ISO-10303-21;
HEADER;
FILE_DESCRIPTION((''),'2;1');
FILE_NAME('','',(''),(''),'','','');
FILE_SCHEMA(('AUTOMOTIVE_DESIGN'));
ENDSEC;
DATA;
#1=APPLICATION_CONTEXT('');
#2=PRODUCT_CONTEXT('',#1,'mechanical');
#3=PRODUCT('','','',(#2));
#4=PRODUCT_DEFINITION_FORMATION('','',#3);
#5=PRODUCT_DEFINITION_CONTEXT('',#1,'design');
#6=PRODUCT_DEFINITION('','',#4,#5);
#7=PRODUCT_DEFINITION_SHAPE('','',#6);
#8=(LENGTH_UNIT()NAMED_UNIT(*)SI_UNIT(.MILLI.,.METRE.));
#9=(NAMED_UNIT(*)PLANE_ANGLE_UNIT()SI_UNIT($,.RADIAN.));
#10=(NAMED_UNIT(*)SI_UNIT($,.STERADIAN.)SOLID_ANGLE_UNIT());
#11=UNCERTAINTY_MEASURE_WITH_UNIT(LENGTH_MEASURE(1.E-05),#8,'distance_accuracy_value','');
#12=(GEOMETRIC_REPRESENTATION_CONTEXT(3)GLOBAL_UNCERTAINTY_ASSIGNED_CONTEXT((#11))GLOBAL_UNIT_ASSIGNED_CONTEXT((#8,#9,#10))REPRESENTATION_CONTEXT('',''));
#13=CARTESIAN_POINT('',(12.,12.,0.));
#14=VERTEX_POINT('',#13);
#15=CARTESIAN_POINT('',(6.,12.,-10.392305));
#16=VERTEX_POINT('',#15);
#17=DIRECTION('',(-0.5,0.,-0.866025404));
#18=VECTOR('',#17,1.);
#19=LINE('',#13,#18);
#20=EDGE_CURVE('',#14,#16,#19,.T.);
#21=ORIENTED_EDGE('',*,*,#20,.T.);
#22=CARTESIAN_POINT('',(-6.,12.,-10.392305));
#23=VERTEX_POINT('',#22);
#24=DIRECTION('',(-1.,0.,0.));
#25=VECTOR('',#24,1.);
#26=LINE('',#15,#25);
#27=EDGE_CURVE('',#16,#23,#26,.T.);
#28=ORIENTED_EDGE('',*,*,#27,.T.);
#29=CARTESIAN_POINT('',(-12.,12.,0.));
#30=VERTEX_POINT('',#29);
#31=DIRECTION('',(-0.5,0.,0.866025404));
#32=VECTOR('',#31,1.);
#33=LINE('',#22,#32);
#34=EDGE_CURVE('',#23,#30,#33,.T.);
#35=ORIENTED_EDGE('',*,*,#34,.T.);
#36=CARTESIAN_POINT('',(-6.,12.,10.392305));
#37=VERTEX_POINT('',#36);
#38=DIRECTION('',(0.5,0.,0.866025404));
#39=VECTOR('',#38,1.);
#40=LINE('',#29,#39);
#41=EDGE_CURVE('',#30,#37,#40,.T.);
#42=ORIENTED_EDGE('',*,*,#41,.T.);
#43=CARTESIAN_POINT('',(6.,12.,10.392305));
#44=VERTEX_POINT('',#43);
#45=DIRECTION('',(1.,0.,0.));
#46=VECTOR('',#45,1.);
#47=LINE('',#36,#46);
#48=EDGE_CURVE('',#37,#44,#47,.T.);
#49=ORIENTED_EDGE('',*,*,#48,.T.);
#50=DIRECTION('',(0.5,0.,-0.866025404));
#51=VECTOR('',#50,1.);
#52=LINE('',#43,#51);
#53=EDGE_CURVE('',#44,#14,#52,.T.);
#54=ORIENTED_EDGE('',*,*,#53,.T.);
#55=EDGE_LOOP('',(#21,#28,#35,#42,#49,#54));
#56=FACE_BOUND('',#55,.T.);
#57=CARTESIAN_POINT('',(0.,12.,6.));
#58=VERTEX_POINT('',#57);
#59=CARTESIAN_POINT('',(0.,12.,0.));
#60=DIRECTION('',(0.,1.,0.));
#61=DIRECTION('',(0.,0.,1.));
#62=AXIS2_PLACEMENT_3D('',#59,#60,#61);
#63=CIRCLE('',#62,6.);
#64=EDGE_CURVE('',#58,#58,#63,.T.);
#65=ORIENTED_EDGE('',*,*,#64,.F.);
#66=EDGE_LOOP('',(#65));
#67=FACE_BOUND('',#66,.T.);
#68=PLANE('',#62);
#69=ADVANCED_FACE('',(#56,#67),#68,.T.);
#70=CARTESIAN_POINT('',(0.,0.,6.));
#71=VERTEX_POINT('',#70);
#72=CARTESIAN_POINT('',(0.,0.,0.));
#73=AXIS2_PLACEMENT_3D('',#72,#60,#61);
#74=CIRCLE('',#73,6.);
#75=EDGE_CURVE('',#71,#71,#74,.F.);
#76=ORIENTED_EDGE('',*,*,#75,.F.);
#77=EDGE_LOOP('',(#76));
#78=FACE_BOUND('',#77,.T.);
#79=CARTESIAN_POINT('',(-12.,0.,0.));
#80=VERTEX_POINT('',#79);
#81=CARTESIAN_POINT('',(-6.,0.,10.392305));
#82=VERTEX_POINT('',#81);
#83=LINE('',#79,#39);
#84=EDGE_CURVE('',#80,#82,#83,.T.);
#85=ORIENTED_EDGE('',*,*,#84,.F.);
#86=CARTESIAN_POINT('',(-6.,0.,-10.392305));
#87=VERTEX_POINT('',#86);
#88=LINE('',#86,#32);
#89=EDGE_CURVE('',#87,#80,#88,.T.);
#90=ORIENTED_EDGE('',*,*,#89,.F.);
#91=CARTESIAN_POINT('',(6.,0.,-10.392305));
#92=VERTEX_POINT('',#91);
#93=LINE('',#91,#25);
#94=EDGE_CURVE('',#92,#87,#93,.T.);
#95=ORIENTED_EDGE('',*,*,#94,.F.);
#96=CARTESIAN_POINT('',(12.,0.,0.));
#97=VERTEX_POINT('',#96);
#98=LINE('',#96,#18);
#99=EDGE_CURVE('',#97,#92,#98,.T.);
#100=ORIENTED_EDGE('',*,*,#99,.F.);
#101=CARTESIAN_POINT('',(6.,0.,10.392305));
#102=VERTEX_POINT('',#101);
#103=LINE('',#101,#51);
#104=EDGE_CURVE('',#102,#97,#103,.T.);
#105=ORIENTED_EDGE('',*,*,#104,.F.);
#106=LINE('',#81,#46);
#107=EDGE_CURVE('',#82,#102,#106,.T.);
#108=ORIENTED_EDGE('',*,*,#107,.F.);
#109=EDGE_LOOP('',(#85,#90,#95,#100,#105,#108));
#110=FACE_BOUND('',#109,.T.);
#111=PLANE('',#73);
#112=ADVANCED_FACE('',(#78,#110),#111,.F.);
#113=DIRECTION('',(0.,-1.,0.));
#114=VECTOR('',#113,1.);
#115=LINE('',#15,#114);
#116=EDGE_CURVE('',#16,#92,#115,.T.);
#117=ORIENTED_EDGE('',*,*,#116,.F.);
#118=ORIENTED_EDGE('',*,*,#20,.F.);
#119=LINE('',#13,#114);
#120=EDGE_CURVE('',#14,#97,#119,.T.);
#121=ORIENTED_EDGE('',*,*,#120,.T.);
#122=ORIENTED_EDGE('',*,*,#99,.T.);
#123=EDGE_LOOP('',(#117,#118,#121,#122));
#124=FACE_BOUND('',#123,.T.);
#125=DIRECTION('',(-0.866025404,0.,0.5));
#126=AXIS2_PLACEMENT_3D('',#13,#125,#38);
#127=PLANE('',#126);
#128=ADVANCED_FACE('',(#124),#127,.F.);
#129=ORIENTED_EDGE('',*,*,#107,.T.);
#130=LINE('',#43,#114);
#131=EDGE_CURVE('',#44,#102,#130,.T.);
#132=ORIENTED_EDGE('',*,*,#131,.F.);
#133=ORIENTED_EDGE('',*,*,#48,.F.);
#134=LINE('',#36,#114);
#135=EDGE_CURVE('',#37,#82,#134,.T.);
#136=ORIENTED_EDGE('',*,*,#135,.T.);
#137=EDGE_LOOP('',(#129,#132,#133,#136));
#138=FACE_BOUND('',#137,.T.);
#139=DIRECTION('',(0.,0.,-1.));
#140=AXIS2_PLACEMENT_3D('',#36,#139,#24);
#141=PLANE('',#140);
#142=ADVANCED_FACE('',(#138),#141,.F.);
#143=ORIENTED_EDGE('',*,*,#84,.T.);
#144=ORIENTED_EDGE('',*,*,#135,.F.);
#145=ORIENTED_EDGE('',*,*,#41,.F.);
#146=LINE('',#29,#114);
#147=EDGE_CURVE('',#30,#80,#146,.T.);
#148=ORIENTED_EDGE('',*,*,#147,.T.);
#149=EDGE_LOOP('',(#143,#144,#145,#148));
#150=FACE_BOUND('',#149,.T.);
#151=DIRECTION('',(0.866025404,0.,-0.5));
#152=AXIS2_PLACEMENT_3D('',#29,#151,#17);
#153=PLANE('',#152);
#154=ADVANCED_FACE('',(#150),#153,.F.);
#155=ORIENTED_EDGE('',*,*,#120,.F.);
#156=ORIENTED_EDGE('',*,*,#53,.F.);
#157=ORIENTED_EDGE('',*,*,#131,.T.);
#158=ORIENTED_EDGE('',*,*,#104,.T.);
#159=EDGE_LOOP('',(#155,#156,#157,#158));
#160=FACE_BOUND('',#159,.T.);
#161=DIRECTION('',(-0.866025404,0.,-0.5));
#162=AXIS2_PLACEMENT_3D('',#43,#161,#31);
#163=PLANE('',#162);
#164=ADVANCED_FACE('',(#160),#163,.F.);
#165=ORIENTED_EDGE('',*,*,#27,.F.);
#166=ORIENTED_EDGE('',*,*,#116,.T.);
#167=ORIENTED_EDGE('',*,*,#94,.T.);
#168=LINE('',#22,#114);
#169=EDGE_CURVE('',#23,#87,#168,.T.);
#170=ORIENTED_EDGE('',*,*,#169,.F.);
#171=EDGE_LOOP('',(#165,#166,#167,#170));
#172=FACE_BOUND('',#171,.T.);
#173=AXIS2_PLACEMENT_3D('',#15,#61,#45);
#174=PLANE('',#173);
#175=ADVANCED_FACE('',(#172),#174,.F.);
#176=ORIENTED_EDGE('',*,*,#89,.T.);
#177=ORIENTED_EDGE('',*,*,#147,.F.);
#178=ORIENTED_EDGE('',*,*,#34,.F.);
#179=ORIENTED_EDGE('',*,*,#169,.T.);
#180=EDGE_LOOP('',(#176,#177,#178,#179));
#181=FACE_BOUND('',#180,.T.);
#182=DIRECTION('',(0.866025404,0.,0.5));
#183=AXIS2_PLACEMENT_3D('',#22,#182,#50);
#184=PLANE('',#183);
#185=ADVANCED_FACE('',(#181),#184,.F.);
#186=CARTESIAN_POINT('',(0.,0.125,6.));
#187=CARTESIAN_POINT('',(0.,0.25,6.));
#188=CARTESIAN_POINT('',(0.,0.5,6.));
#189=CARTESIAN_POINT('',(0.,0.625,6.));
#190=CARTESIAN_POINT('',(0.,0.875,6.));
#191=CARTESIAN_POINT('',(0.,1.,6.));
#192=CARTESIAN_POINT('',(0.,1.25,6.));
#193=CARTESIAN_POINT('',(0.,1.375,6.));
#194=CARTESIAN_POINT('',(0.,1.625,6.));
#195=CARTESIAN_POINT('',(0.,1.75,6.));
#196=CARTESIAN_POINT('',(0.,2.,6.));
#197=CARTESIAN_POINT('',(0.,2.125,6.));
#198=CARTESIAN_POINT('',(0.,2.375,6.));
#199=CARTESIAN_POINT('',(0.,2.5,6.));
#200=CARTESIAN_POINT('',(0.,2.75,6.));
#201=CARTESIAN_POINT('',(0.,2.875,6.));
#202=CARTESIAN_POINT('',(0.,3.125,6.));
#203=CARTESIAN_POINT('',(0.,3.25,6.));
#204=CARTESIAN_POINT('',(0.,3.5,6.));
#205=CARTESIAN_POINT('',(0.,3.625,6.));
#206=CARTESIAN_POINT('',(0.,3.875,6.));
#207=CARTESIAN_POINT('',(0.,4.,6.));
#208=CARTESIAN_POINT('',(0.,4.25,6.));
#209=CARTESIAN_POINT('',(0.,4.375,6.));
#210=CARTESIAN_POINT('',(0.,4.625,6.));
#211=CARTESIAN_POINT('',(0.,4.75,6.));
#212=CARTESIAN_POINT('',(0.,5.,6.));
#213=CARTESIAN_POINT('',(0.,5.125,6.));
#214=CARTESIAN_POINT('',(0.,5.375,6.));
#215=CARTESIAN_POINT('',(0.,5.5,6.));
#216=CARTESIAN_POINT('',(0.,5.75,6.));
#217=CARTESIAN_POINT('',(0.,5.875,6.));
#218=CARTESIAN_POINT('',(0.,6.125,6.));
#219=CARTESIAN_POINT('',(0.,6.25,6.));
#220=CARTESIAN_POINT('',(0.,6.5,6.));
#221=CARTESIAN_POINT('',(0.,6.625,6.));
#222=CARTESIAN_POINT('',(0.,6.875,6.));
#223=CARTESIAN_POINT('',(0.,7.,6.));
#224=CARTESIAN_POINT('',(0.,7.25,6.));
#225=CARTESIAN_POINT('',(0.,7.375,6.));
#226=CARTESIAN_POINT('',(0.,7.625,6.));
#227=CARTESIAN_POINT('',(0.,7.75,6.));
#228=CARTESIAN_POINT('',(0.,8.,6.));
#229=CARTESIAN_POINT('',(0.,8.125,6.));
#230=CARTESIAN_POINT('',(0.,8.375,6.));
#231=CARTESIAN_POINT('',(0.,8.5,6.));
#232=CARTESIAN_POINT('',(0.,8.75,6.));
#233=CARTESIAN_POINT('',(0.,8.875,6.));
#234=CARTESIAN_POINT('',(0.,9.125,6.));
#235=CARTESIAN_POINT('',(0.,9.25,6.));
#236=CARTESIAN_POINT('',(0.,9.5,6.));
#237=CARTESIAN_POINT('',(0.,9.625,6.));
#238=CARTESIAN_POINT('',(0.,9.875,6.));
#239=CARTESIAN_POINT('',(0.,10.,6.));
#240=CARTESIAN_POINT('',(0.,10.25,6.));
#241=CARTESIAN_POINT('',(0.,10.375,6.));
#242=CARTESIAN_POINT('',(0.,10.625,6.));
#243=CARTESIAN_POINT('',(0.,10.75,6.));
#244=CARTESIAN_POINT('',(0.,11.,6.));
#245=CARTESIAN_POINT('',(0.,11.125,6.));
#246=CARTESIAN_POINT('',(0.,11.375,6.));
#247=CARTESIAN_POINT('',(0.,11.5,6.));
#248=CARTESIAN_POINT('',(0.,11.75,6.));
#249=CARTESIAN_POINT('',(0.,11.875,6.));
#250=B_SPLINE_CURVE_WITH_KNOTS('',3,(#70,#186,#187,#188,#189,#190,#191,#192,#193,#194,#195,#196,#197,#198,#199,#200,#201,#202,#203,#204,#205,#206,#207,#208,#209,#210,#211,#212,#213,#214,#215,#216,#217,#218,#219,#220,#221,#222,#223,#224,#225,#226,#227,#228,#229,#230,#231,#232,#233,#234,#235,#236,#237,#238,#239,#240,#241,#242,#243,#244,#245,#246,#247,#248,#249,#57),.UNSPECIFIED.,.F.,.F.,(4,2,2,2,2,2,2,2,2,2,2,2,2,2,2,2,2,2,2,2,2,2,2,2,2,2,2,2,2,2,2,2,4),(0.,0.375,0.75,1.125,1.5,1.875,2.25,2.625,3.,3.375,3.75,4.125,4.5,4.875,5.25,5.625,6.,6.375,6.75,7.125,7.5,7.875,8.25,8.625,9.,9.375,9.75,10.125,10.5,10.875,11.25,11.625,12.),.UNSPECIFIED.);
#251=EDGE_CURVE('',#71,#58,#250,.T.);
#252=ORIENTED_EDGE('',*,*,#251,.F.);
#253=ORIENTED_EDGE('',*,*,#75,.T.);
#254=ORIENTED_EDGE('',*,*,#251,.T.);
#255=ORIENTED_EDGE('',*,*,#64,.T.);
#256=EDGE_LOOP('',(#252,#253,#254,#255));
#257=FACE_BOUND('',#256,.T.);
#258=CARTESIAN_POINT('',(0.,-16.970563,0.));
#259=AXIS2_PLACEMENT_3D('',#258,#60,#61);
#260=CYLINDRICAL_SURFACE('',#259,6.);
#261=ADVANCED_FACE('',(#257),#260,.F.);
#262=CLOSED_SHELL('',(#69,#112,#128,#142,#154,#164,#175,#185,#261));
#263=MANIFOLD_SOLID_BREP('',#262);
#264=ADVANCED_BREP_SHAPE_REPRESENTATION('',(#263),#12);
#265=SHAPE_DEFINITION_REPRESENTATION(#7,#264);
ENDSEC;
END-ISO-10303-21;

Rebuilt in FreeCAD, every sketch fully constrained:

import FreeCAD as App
import Part
import Sketcher

V = App.Vector
Q = App.Units.Quantity

doc = App.newDocument("Part")
body = doc.addObject("PartDesign::Body", "Body")

# Sketch on XZ plane
sketch1 = body.newObject("Sketcher::SketchObject", "Sketch")
sketch1.AttachmentSupport = (doc.getObject("XZ_Plane"), [""])
sketch1.MapMode = "FlatFace"
sketch1.addGeometry([
    Part.LineSegment(V(6, 10, 0), V(12, 0, 0)),  # 0
    Part.LineSegment(V(12, 0, 0), V(6, -10, 0)),  # 1
    Part.LineSegment(V(6, -10, 0), V(-6, -10, 0)),  # 2
    Part.LineSegment(V(-6, -10, 0), V(-12, 0, 0)),  # 3
    Part.LineSegment(V(-12, 0, 0), V(-6, 10, 0)),  # 4
    Part.LineSegment(V(-6, 10, 0), V(6, 10, 0)),  # 5
], False)
sketch1.addConstraint([
    Sketcher.Constraint("Coincident", 0, 2, 1, 1),
    Sketcher.Constraint("Coincident", 1, 2, 2, 1),
    Sketcher.Constraint("Coincident", 2, 2, 3, 1),
    Sketcher.Constraint("Coincident", 3, 2, 4, 1),
    Sketcher.Constraint("Coincident", 4, 2, 5, 1),
    Sketcher.Constraint("Coincident", 5, 2, 0, 1),
    Sketcher.Constraint("Horizontal", 2),
    Sketcher.Constraint("Horizontal", 5),
    Sketcher.Constraint("Symmetric", 0, 2, 3, 2, -1, 1),
    Sketcher.Constraint("Symmetric", 1, 2, 4, 2, -1, 1),
    Sketcher.Constraint("PointOnObject", 0, 2, -1),
    Sketcher.Constraint("Parallel", 0, 3),
    Sketcher.Constraint("Vertical", 2, 2, 4, 2),
    Sketcher.Constraint("DistanceX", 2, 2, 2, 1, Q("12 mm")),
    Sketcher.Constraint("Angle", 0, Q("-60 deg")),
    Sketcher.Constraint("Distance", 0, Q("12 mm")),
])
pad1 = body.newObject("PartDesign::Pad", "Pad")
pad1.Profile = sketch1
pad1.Length = 12
pad1.Reversed = True

# Sketch on XZ plane
sketch2 = body.newObject("Sketcher::SketchObject", "Sketch001")
sketch2.AttachmentSupport = (doc.getObject("XZ_Plane"), [""])
sketch2.MapMode = "FlatFace"
sketch2.AttachmentOffset = App.Placement(V(0, 0, -12), App.Rotation())
sketch2.addGeometry(Part.Circle(V(0, 0, 0), V(0, 0, 1), 6), False)
sketch2.addConstraint([
    Sketcher.Constraint("Coincident", 0, 3, -1, 1),
    Sketcher.Constraint("Diameter", 0, Q("12 mm")),
])
pocket1 = body.newObject("PartDesign::Pocket", "Pocket")
pocket1.Profile = sketch2
pocket1.Length = 12
pocket1.Reversed = True

doc.recompute()
